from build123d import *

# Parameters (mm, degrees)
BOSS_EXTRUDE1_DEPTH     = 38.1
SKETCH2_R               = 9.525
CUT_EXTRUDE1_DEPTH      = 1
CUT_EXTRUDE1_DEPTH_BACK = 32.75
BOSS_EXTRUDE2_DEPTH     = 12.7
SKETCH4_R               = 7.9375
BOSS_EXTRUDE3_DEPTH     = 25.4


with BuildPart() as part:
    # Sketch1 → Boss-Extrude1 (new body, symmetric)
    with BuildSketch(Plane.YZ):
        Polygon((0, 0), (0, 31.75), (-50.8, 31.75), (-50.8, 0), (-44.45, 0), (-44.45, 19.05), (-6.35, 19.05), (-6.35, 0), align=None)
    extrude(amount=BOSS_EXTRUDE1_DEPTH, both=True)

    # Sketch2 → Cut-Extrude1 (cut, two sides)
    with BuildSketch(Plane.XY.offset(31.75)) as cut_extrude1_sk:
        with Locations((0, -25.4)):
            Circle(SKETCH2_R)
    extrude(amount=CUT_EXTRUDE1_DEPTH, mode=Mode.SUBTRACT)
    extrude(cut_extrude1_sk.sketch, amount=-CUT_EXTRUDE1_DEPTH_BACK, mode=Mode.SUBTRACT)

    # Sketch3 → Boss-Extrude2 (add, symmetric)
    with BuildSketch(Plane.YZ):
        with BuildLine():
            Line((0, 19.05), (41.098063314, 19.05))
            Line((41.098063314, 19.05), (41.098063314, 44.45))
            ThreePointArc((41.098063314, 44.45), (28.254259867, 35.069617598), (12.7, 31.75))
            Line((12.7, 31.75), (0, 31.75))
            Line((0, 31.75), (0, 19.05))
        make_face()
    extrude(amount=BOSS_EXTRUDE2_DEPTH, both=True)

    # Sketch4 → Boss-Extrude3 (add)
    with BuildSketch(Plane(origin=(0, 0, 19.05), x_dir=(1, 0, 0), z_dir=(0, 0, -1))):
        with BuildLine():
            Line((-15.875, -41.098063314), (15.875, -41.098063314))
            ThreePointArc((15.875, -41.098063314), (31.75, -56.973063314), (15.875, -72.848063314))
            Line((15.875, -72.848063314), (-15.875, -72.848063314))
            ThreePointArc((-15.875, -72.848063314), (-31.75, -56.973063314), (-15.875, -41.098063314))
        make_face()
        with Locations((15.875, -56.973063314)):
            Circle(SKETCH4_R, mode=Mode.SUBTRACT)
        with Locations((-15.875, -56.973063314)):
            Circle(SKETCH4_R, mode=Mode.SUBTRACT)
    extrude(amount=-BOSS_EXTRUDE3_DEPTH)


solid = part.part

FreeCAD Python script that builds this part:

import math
import FreeCAD as App
import Part
import Sketcher

V = App.Vector
Q = App.Units.Quantity


def add_polygon(sketch, points):
    """Adds a closed chain of lines whose ends are joined by coincident constraints."""
    first, n = sketch.GeometryCount, len(points)
    for a, b in zip(points, points[1:] + points[:1]):
        sketch.addGeometry(Part.LineSegment(App.Vector(*a, 0), App.Vector(*b, 0)), False)
    for i in range(n):
        sketch.addConstraint(Sketcher.Constraint("Coincident", first + i, 2, first + (i + 1) % n, 1))

doc = App.newDocument("Part")
params = doc.addObject("Spreadsheet::Sheet", "Params")
for row, (alias, value) in enumerate([
    ("sketch1_width", "2 in"),
    ("sketch1_width2", "1.5 in"),
    ("sketch1_height", "1.25 in"),
    ("sketch1_height2", "0.75 in"),
    ("pad1_length", "3 in"),
    ("sketch2_diameter", "0.75 in"),
    ("sketch3_radius", "1.5 in"),
    ("sketch3_height", "1 in"),
    ("sketch3_width", "0.5 in"),
    ("pad2_length", "1 in"),
    ("sketch4_diameter", "0.625 in"),
    ("sketch4_radius", "0.625 in"),
    ("sketch4_width", "1.25 in"),
    ("pad3_length", "1 in"),
], start=1):
    params.set(f"A{row}", alias)
    params.set(f"B{row}", "=" + value)
    params.setAlias(f"B{row}", alias)

body = doc.addObject("PartDesign::Body", "Body")

# Sketch on YZ plane
sketch1 = doc.addObject("Sketcher::SketchObject", "Sketch")
body.addObject(sketch1)
sketch1.AttachmentSupport = (doc.YZ_Plane, [""])
sketch1.MapMode = "FlatFace"
add_polygon(sketch1, [(0, 0), (0, 32), (-51, 32), (-51, 0), (-44, 0), (-44, 19), (-6, 19), (-6, 0)])  # lines 0-7
sketch1.addConstraint(Sketcher.Constraint("Vertical", 0))
sketch1.addConstraint(Sketcher.Constraint("Horizontal", 1))
sketch1.addConstraint(Sketcher.Constraint("Vertical", 2))
sketch1.addConstraint(Sketcher.Constraint("Horizontal", 3))
sketch1.addConstraint(Sketcher.Constraint("Vertical", 4))
sketch1.addConstraint(Sketcher.Constraint("Horizontal", 5))
sketch1.addConstraint(Sketcher.Constraint("Vertical", 6))
sketch1.addConstraint(Sketcher.Constraint("Horizontal", 7))
sketch1.addConstraint(Sketcher.Constraint("Coincident", 7, 2, -1, 1))
sketch1.addConstraint(Sketcher.Constraint("PointOnObject", 2, 2, -1))
sketch1.addConstraint(Sketcher.Constraint("Equal", 3, 7))
sketch1.addConstraint(Sketcher.Constraint("DistanceX", 1, 2, 1, 1, Q("2 in")))
sketch1.addConstraint(Sketcher.Constraint("DistanceX", 5, 1, 5, 2, Q("1.5 in")))
sketch1.addConstraint(Sketcher.Constraint("DistanceY", 0, 1, 0, 2, Q("1.25 in")))
sketch1.addConstraint(Sketcher.Constraint("DistanceY", 4, 1, 4, 2, Q("0.75 in")))
sketch1.setExpression("Constraints[19]", "Params.sketch1_width")
sketch1.setExpression("Constraints[20]", "Params.sketch1_width2")
sketch1.setExpression("Constraints[21]", "Params.sketch1_height")
sketch1.setExpression("Constraints[22]", "Params.sketch1_height2")
pad1 = doc.addObject("PartDesign::Pad", "Pad")
body.addObject(pad1)
pad1.Profile = sketch1
pad1.setExpression("Length", "Params.pad1_length")
pad1.Midplane = True

# Sketch on XY plane
sketch2 = doc.addObject("Sketcher::SketchObject", "Sketch001")
body.addObject(sketch2)
sketch2.AttachmentSupport = (doc.XY_Plane, [""])
sketch2.MapMode = "FlatFace"
sketch2.AttachmentOffset = App.Placement(V(0, 0, 1.25 * 25.4), App.Rotation())
sketch2.addGeometry(Part.Circle(V(0, -25, 0), V(0, 0, 1), 10), False)
sketch2.addConstraint(Sketcher.Constraint("PointOnObject", 0, 3, -2))
sketch2.addConstraint(Sketcher.Constraint("Diameter", 0, Q("0.75 in")))
sketch2.addConstraint(Sketcher.Constraint("DistanceY", 0, 3, -1, 1, Q("1 in")))
sketch2.setExpression("Constraints[1]", "Params.sketch2_diameter")
pocket1 = doc.addObject("PartDesign::Pocket", "Pocket")
body.addObject(pocket1)
pocket1.Profile = sketch2
pocket1.Type = "ThroughAll"
pocket1.Midplane = True

# Sketch on YZ plane
sketch3 = doc.addObject("Sketcher::SketchObject", "Sketch002")
body.addObject(sketch3)
sketch3.AttachmentSupport = (doc.YZ_Plane, [""])
sketch3.MapMode = "FlatFace"
sketch3.addGeometry(Part.LineSegment(V(0, 19, 0), V(41, 19, 0)), False)
sketch3.addGeometry(Part.LineSegment(V(41, 19, 0), V(41, 44, 0)), False)
sketch3.addGeometry(Part.ArcOfCircle(Part.Circle(V(13, 70, 0), V(0, 0, 1), 38), math.radians(-90), math.radians(-42)), False)
sketch3.addGeometry(Part.LineSegment(V(13, 32, 0), V(0, 32, 0)), False)
sketch3.addGeometry(Part.LineSegment(V(0, 32, 0), V(0, 19, 0)), False)
sketch3.addConstraint(Sketcher.Constraint("Coincident", 0, 2, 1, 1))
sketch3.addConstraint(Sketcher.Constraint("Coincident", 1, 2, 2, 2))
sketch3.addConstraint(Sketcher.Constraint("Tangent", 2, 1, 3, 1))
sketch3.addConstraint(Sketcher.Constraint("Coincident", 3, 2, 4, 1))
sketch3.addConstraint(Sketcher.Constraint("Coincident", 4, 2, 0, 1))
sketch3.addConstraint(Sketcher.Constraint("Horizontal", 0))
sketch3.addConstraint(Sketcher.Constraint("Vertical", 1))
sketch3.addConstraint(Sketcher.Constraint("Horizontal", 3))
sketch3.addConstraint(Sketcher.Constraint("Vertical", 4))
sketch3.addConstraint(Sketcher.Constraint("PointOnObject", 3, 2, -2))
sketch3.addConstraint(Sketcher.Constraint("Equal", 3, 4))
sketch3.addConstraint(Sketcher.Constraint("Radius", 2, Q("1.5 in")))
sketch3.addConstraint(Sketcher.Constraint("DistanceY", 1, 1, 1, 2, Q("1 in")))
sketch3.addConstraint(Sketcher.Constraint("DistanceX", 3, 2, 3, 1, Q("0.5 in")))
sketch3.addConstraint(Sketcher.Constraint("DistanceY", -1, 1, 2, 3, Q("2.75 in")))
sketch3.setExpression("Constraints[11]", "Params.sketch3_radius")
sketch3.setExpression("Constraints[12]", "Params.sketch3_height")
sketch3.setExpression("Constraints[13]", "Params.sketch3_width")
pad2 = doc.addObject("PartDesign::Pad", "Pad001")
body.addObject(pad2)
pad2.Profile = sketch3
pad2.setExpression("Length", "Params.pad2_length")
pad2.Midplane = True

# Sketch on XY plane
sketch4 = doc.addObject("Sketcher::SketchObject", "Sketch003")
body.addObject(sketch4)
sketch4.AttachmentSupport = (doc.XY_Plane, [""])
sketch4.MapMode = "FlatFace"
sketch4.AttachmentOffset = App.Placement(V(0, 0, 0.75 * 25.4), App.Rotation())
sketch4.addGeometry(Part.LineSegment(V(16, 41, 0), V(-16, 41, 0)), False)
sketch4.addGeometry(Part.ArcOfCircle(Part.Circle(V(-16, 57, 0), V(0, 0, 1), 16), math.radians(90), math.radians(270)), False)
sketch4.addGeometry(Part.LineSegment(V(-16, 73, 0), V(16, 73, 0)), False)
sketch4.addGeometry(Part.ArcOfCircle(Part.Circle(V(16, 57, 0), V(0, 0, 1), 16), math.radians(-90), math.radians(90)), False)
sketch4.addGeometry(Part.Circle(V(16, 57, 0), V(0, 0, 1), 8), False)
sketch4.addGeometry(Part.Circle(V(-16, 57, 0), V(0, 0, 1), 8), False)
sketch4.addConstraint(Sketcher.Constraint("Tangent", 0, 2, 1, 2))
sketch4.addConstraint(Sketcher.Constraint("Tangent", 1, 1, 2, 1))
sketch4.addConstraint(Sketcher.Constraint("Tangent", 2, 2, 3, 2))
sketch4.addConstraint(Sketcher.Constraint("Tangent", 3, 1, 0, 1))
sketch4.addConstraint(Sketcher.Constraint("Horizontal", 0))
sketch4.addConstraint(Sketcher.Constraint("Horizontal", 2))
sketch4.addConstraint(Sketcher.Constraint("Coincident", 4, 3, 3, 3))
sketch4.addConstraint(Sketcher.Constraint("Coincident", 5, 3, 1, 3))
sketch4.addConstraint(Sketcher.Constraint("Equal", 4, 5))
sketch4.addConstraint(Sketcher.Constraint("Diameter", 4, Q("0.625 in")))
sketch4.addConstraint(Sketcher.Constraint("Radius", 1, Q("0.625 in")))
sketch4.addConstraint(Sketcher.Constraint("DistanceX", 0, 2, 0, 1, Q("1.25 in")))
sketch4.addConstraint(Sketcher.Constraint("DistanceX", 1, 3, -1, 1, Q("0.625 in")))
sketch4.addConstraint(Sketcher.Constraint("DistanceY", -1, 1, 1, 3, Q("56.973063 mm")))
sketch4.setExpression("Constraints[9]", "Params.sketch4_diameter")
sketch4.setExpression("Constraints[10]", "Params.sketch4_radius")
sketch4.setExpression("Constraints[11]", "Params.sketch4_width")
pad3 = doc.addObject("PartDesign::Pad", "Pad002")
body.addObject(pad3)
pad3.Profile = sketch4
pad3.setExpression("Length", "Params.pad3_length")

doc.recompute()
